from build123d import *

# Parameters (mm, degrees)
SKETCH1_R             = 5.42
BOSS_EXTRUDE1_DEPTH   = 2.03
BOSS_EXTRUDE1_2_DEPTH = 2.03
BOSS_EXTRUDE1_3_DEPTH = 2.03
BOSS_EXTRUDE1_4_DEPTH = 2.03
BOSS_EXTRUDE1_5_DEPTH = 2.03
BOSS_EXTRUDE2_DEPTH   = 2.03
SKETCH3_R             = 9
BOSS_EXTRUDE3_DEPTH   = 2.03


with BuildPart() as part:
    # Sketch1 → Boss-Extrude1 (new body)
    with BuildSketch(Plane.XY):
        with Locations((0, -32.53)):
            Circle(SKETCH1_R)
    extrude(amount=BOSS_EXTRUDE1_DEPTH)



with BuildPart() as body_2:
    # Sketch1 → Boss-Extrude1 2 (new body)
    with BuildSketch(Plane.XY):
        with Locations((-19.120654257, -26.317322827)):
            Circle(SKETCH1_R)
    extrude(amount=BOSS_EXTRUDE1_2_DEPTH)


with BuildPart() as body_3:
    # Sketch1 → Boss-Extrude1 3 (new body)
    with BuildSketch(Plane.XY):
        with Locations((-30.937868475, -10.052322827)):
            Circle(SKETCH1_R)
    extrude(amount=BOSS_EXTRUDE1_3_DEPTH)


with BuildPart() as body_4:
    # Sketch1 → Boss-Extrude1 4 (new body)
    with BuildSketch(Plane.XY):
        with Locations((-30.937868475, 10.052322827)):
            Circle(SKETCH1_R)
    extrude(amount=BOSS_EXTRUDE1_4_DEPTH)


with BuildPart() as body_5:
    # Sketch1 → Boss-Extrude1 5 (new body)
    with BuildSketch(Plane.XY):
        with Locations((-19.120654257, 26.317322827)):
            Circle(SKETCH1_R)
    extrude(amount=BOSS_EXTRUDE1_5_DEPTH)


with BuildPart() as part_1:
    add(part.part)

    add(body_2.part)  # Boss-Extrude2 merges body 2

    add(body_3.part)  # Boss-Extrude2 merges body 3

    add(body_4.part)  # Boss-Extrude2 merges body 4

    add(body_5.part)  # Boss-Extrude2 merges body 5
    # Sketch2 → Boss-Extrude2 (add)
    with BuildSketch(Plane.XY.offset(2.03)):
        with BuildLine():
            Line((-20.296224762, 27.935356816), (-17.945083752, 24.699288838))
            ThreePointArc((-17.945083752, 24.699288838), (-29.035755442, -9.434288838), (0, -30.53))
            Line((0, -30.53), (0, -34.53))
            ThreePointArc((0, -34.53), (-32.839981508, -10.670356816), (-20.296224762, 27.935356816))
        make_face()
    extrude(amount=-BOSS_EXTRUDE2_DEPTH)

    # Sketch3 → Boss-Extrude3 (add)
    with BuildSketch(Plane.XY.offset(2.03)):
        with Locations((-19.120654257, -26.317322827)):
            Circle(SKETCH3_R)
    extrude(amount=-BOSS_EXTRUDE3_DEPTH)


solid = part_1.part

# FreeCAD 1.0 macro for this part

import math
import FreeCAD as App
import Part
import Sketcher

V = App.Vector
Q = App.Units.Quantity

doc = App.newDocument("Part")
body = doc.addObject("PartDesign::Body", "Body")

sketch1 = body.newObject("Sketcher::SketchObject", "Sketch")
sketch1.AttachmentSupport = (doc.getObject("XY_Plane"), [""])
sketch1.MapMode = "FlatFace"
sketch1.addGeometry(Part.Circle(V(0, -33, 0), V(0, 0, 1), 5), False)
sketch1.addConstraint([
    Sketcher.Constraint("PointOnObject", 0, 3, -2),
    Sketcher.Constraint("Diameter", 0, Q("10.84 mm")),
    Sketcher.Constraint("DistanceY", 0, 3, -1, 1, Q("32.53 mm")),
])
pad1 = body.newObject("PartDesign::Pad", "Pad")
pad1.Profile = sketch1
pad1.Length = 2.03
body2 = doc.addObject("PartDesign::Body", "Body001")

sketch2 = body2.newObject("Sketcher::SketchObject", "Sketch001")
sketch2.AttachmentSupport = (doc.getObject("XY_Plane001"), [""])
sketch2.MapMode = "FlatFace"
sketch2.addGeometry(Part.Circle(V(-19, -26, 0), V(0, 0, 1), 5), False)
sketch2.addConstraint([
    Sketcher.Constraint("Diameter", 0, Q("10.84 mm")),
    Sketcher.Constraint("DistanceX", 0, 3, -1, 1, Q("19.120654 mm")),
    Sketcher.Constraint("DistanceY", 0, 3, -1, 1, Q("26.317323 mm")),
])
pad2 = body2.newObject("PartDesign::Pad", "Pad001")
pad2.Profile = sketch2
pad2.Length = 2.03
body3 = doc.addObject("PartDesign::Body", "Body002")

sketch3 = body3.newObject("Sketcher::SketchObject", "Sketch002")
sketch3.AttachmentSupport = (doc.getObject("XY_Plane002"), [""])
sketch3.MapMode = "FlatFace"
sketch3.addGeometry(Part.Circle(V(-31, -10, 0), V(0, 0, 1), 5), False)
sketch3.addConstraint([
    Sketcher.Constraint("Diameter", 0, Q("10.84 mm")),
    Sketcher.Constraint("DistanceX", 0, 3, -1, 1, Q("30.937868 mm")),
    Sketcher.Constraint("DistanceY", 0, 3, -1, 1, Q("10.052323 mm")),
])
pad3 = body3.newObject("PartDesign::Pad", "Pad002")
pad3.Profile = sketch3
pad3.Length = 2.03
body4 = doc.addObject("PartDesign::Body", "Body003")

sketch4 = body4.newObject("Sketcher::SketchObject", "Sketch003")
sketch4.AttachmentSupport = (doc.getObject("XY_Plane003"), [""])
sketch4.MapMode = "FlatFace"
sketch4.addGeometry(Part.Circle(V(-31, 10, 0), V(0, 0, 1), 5), False)
sketch4.addConstraint([
    Sketcher.Constraint("Diameter", 0, Q("10.84 mm")),
    Sketcher.Constraint("DistanceX", 0, 3, -1, 1, Q("30.937868 mm")),
    Sketcher.Constraint("DistanceY", -1, 1, 0, 3, Q("10.052323 mm")),
])
pad4 = body4.newObject("PartDesign::Pad", "Pad003")
pad4.Profile = sketch4
pad4.Length = 2.03
body5 = doc.addObject("PartDesign::Body", "Body004")

sketch5 = body5.newObject("Sketcher::SketchObject", "Sketch004")
sketch5.AttachmentSupport = (doc.getObject("XY_Plane004"), [""])
sketch5.MapMode = "FlatFace"
sketch5.addGeometry(Part.Circle(V(-19, 26, 0), V(0, 0, 1), 5), False)
sketch5.addConstraint([
    Sketcher.Constraint("Diameter", 0, Q("10.84 mm")),
    Sketcher.Constraint("DistanceX", 0, 3, -1, 1, Q("19.120654 mm")),
    Sketcher.Constraint("DistanceY", -1, 1, 0, 3, Q("26.317323 mm")),
])
pad5 = body5.newObject("PartDesign::Pad", "Pad004")
pad5.Profile = sketch5
pad5.Length = 2.03
body.AllowCompound = True
doc.recompute()

boolean = body.newObject("PartDesign::Boolean", "Boolean")
boolean.Type = "Fuse"
boolean.addObjects([body2])
doc.recompute()

boolean2 = body.newObject("PartDesign::Boolean", "Boolean001")
boolean2.Type = "Fuse"
boolean2.addObjects([body3])
doc.recompute()

boolean3 = body.newObject("PartDesign::Boolean", "Boolean002")
boolean3.Type = "Fuse"
boolean3.addObjects([body4])
doc.recompute()

boolean4 = body.newObject("PartDesign::Boolean", "Boolean003")
boolean4.Type = "Fuse"
boolean4.addObjects([body5])

sketch6 = body.newObject("Sketcher::SketchObject", "Sketch005")
sketch6.AttachmentSupport = (doc.getObject("XY_Plane"), [""])
sketch6.MapMode = "FlatFace"
sketch6.AttachmentOffset = App.Placement(V(0, 0, 2.03), App.Rotation())
sketch6.addGeometry([
    Part.LineSegment(V(-17.9, 24.7, 0), V(-20.3, 27.9, 0)),
    Part.ArcOfCircle(Part.Circle(V(0, 0, 0), V(0, 0, 1), 34.5), math.radians(126), math.radians(270)),
    Part.LineSegment(V(0, -34.5, 0), V(0, -30.5, 0)),
    Part.ArcOfCircle(Part.Circle(V(0, 0, 0), V(0, 0, 1), 30.5), math.radians(126), math.radians(270)),
], False)
sketch6.addConstraint([
    Sketcher.Constraint("Coincident", 0, 2, 1, 1),
    Sketcher.Constraint("Coincident", 1, 2, 2, 1),
    Sketcher.Constraint("Coincident", 2, 2, 3, 2),
    Sketcher.Constraint("Coincident", 3, 1, 0, 1),
    Sketcher.Constraint("Vertical", 2),
    Sketcher.Constraint("Coincident", 1, 3, -1, 1),
    Sketcher.Constraint("Coincident", 3, 3, -1, 1),
    Sketcher.Constraint("PointOnObject", 1, 2, -2),
    Sketcher.Constraint("DistanceY", 2, 1, 2, 2, Q("4 mm")),
    Sketcher.Constraint("Angle", 0, Q("126 deg")),
    Sketcher.Constraint("Radius", 1, Q("34.53 mm")),
    Sketcher.Constraint("DistanceY", -1, 1, 3, 1, Q("24.699289 mm")),
])
pad6 = body.newObject("PartDesign::Pad", "Pad005")
pad6.Profile = sketch6
pad6.Length = 2.03
pad6.Reversed = True

sketch7 = body.newObject("Sketcher::SketchObject", "Sketch006")
sketch7.AttachmentSupport = (doc.getObject("XY_Plane"), [""])
sketch7.MapMode = "FlatFace"
sketch7.AttachmentOffset = App.Placement(V(0, 0, 2.03), App.Rotation())
sketch7.addGeometry(Part.Circle(V(-19, -26, 0), V(0, 0, 1), 9), False)
sketch7.addConstraint([
    Sketcher.Constraint("Diameter", 0, Q("18 mm")),
    Sketcher.Constraint("DistanceX", 0, 3, -1, 1, Q("19.120654 mm")),
    Sketcher.Constraint("DistanceY", 0, 3, -1, 1, Q("26.317323 mm")),
])
pad7 = body.newObject("PartDesign::Pad", "Pad006")
pad7.Profile = sketch7
pad7.Length = 2.03
pad7.Reversed = True

doc.recompute()
